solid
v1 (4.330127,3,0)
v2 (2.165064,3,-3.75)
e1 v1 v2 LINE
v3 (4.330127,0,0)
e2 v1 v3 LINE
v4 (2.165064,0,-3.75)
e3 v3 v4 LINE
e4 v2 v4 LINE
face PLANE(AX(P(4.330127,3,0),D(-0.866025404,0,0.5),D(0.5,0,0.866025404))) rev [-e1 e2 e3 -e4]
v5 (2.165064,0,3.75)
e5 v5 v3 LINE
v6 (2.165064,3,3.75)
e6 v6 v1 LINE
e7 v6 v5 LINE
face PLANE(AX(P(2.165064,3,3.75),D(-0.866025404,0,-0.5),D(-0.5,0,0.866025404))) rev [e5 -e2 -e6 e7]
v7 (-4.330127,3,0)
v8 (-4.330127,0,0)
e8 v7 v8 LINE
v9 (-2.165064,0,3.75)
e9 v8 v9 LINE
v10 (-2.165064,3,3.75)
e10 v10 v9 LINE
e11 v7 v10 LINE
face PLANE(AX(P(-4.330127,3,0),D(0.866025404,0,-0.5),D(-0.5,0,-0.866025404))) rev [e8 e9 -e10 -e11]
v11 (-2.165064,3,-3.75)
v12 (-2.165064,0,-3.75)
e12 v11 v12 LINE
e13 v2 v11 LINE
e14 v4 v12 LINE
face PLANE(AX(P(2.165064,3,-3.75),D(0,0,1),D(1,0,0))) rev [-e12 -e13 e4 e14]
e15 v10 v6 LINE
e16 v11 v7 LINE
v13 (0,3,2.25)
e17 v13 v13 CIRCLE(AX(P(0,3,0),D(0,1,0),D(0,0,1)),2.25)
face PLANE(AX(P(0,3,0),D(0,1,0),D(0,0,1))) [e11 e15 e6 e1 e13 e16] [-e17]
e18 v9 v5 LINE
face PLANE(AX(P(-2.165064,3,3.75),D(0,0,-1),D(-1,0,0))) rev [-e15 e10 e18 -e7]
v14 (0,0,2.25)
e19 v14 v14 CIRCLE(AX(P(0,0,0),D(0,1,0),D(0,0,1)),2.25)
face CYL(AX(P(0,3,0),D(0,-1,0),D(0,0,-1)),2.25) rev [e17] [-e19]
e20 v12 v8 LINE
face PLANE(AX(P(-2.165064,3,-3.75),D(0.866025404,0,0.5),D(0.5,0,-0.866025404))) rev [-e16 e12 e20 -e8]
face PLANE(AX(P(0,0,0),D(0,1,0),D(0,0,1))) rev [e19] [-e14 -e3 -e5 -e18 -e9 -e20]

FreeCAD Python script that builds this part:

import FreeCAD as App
import Part
import Sketcher

V = App.Vector
Q = App.Units.Quantity

doc = App.newDocument("Part")
body = doc.addObject("PartDesign::Body", "Body")

sketch1 = body.newObject("Sketcher::SketchObject", "Sketch")
sketch1.AttachmentSupport = (doc.getObject("XZ_Plane"), [""])
sketch1.MapMode = "FlatFace"
sketch1.addGeometry([
    Part.LineSegment(V(2.165064, -3.75, 0), V(-2.165064, -3.75, 0)),
    Part.LineSegment(V(-2.165064, -3.75, 0), V(-4.330127, 0, 0)),
    Part.LineSegment(V(-4.330127, 0, 0), V(-2.165064, 3.75, 0)),
    Part.LineSegment(V(-2.165064, 3.75, 0), V(2.165064, 3.75, 0)),
    Part.LineSegment(V(2.165064, 3.75, 0), V(4.330127, 0, 0)),
    Part.LineSegment(V(4.330127, 0, 0), V(2.165064, -3.75, 0)),
    Part.Circle(V(0, 0, 0), V(0, 0, 1), 2.25),
], False)
sketch1.addConstraint([
    Sketcher.Constraint("Coincident", 0, 2, 1, 1),
    Sketcher.Constraint("Coincident", 1, 2, 2, 1),
    Sketcher.Constraint("Coincident", 2, 2, 3, 1),
    Sketcher.Constraint("Coincident", 3, 2, 4, 1),
    Sketcher.Constraint("Coincident", 4, 2, 5, 1),
    Sketcher.Constraint("Coincident", 5, 2, 0, 1),
    Sketcher.Constraint("Horizontal", 0),
    Sketcher.Constraint("Horizontal", 3),
    Sketcher.Constraint("Coincident", 6, 3, -1, 1),
    Sketcher.Constraint("Symmetric", 0, 2, 3, 2, -1, 1),
    Sketcher.Constraint("Symmetric", 1, 2, 4, 2, -1, 1),
    Sketcher.Constraint("PointOnObject", 1, 2, -1),
    Sketcher.Constraint("Parallel", 2, 5),
    Sketcher.Constraint("Vertical", 0, 2, 2, 2),
    Sketcher.Constraint("Diameter", 6, 4.5),
    Sketcher.Constraint("Angle", 1, Q("120 deg")),
    Sketcher.Constraint("DistanceY", 0, 2, 2, 2, 7.5),
    Sketcher.Constraint("DistanceX", 0, 2, 0, 1, 4.330127),
])
pad1 = body.newObject("PartDesign::Pad", "Pad")
pad1.Profile = sketch1
pad1.Length = 3
pad1.Reversed = True

doc.recompute()
